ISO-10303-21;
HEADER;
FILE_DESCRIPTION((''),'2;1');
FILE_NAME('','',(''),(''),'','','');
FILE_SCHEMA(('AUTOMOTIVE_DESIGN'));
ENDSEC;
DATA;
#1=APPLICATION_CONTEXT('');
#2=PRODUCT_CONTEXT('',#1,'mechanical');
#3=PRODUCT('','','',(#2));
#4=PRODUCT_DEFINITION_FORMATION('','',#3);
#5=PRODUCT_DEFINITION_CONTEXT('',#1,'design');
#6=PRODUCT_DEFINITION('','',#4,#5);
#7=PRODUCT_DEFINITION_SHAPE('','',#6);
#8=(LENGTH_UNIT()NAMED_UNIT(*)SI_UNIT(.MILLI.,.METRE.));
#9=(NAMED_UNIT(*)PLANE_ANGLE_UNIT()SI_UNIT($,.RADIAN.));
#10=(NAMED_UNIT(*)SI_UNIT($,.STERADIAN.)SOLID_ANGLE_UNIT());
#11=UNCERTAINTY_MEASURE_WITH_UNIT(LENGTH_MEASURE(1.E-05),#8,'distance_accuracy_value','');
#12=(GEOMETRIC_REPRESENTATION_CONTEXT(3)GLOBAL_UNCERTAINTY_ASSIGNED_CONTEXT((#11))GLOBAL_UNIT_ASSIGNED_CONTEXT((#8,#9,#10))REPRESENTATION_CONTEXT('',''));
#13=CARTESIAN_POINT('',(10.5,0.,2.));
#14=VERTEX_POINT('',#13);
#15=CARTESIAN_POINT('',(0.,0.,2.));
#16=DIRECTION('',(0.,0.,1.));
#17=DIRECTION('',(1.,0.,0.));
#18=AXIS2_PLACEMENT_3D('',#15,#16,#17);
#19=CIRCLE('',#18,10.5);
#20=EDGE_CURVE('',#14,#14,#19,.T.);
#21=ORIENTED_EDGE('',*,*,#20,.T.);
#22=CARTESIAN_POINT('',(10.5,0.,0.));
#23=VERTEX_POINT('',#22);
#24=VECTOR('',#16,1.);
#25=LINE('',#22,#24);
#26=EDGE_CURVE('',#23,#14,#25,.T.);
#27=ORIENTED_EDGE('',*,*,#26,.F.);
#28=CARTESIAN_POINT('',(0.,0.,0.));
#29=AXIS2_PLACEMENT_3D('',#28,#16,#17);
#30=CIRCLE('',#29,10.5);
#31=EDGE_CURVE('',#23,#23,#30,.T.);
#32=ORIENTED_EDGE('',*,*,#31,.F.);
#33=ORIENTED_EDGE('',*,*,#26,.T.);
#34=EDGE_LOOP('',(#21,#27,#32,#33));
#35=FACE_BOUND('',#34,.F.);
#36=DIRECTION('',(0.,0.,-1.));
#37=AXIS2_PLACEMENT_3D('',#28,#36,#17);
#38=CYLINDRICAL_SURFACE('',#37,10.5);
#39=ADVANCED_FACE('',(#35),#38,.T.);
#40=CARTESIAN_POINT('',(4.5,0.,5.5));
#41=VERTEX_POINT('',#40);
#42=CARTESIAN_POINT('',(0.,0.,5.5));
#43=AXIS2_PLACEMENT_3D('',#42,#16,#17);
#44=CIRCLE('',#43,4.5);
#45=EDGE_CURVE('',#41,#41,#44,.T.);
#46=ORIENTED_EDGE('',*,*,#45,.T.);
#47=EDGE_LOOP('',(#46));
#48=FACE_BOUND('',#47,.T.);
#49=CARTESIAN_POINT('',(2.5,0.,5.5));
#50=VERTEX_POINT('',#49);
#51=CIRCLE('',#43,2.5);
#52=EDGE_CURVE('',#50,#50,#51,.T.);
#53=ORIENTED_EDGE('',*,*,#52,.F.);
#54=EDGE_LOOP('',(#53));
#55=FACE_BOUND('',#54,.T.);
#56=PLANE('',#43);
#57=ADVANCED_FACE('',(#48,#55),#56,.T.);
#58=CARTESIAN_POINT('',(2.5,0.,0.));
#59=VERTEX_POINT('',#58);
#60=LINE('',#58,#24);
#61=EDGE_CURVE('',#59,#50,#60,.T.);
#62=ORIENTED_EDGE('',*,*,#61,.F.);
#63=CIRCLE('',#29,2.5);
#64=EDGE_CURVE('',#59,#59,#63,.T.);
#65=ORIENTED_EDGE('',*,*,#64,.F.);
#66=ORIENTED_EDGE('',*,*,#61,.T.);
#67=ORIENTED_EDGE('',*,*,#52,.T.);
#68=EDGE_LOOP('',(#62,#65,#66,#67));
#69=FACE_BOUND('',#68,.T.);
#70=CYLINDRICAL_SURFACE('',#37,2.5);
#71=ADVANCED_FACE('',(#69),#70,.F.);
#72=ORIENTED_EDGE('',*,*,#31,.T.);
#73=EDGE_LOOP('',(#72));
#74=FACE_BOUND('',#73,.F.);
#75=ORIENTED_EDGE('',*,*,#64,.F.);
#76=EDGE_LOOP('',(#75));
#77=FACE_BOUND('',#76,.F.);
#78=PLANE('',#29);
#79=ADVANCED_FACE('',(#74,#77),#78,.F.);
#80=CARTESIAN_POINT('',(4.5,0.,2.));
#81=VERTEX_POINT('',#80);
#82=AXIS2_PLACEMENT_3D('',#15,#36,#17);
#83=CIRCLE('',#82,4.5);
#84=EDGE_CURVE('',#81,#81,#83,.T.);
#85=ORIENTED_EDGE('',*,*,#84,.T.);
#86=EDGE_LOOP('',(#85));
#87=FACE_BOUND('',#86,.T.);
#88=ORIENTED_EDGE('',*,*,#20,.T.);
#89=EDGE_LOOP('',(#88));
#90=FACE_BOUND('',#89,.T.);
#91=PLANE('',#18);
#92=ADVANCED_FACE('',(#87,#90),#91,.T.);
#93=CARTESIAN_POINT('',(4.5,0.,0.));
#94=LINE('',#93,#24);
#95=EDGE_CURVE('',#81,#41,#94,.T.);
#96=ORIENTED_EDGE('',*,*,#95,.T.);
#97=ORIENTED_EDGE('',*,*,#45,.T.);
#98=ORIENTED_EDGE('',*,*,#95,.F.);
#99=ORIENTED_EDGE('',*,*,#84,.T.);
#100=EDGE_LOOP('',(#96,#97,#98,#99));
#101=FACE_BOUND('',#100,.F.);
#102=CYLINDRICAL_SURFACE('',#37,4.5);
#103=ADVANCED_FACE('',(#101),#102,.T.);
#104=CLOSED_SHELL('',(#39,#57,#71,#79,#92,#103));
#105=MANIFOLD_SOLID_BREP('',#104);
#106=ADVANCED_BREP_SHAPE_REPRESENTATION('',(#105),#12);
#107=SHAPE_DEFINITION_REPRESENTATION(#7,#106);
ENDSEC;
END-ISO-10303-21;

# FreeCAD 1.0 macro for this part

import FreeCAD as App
import Part
import Sketcher

V = App.Vector
Q = App.Units.Quantity

doc = App.newDocument("Part")
body = doc.addObject("PartDesign::Body", "Body")

sketch1 = doc.addObject("Sketcher::SketchObject", "Sketch")
body.addObject(sketch1)
sketch1.AttachmentSupport = (doc.XY_Plane, [""])
sketch1.MapMode = "FlatFace"
sketch1.addGeometry([
    Part.Circle(V(0, 0, 0), V(0, 0, 1), 10.5),
    Part.Circle(V(0, 0, 0), V(0, 0, 1), 2.5),
], False)
sketch1.addConstraint([
    Sketcher.Constraint("Coincident", 0, 3, -1, 1),
    Sketcher.Constraint("Coincident", 1, 3, -1, 1),
    Sketcher.Constraint("Diameter", 0, Q("21 mm")),
    Sketcher.Constraint("Diameter", 1, Q("5 mm")),
])
pad1 = doc.addObject("PartDesign::Pad", "Pad")
body.addObject(pad1)
pad1.Profile = sketch1
pad1.Length = 2

sketch2 = doc.addObject("Sketcher::SketchObject", "Sketch001")
body.addObject(sketch2)
sketch2.AttachmentSupport = (doc.XY_Plane, [""])
sketch2.MapMode = "FlatFace"
sketch2.addGeometry([
    Part.Circle(V(0, 0, 0), V(0, 0, 1), 4.5),
    Part.Circle(V(0, 0, 0), V(0, 0, 1), 2.5),
], False)
sketch2.addConstraint([
    Sketcher.Constraint("Coincident", 0, 3, -1, 1),
    Sketcher.Constraint("Coincident", 1, 3, -1, 1),
    Sketcher.Constraint("Diameter", 0, Q("9 mm")),
    Sketcher.Constraint("Diameter", 1, Q("5 mm")),
])
pad2 = doc.addObject("PartDesign::Pad", "Pad001")
body.addObject(pad2)
pad2.Profile = sketch2
pad2.Length = 5.5

doc.recompute()
